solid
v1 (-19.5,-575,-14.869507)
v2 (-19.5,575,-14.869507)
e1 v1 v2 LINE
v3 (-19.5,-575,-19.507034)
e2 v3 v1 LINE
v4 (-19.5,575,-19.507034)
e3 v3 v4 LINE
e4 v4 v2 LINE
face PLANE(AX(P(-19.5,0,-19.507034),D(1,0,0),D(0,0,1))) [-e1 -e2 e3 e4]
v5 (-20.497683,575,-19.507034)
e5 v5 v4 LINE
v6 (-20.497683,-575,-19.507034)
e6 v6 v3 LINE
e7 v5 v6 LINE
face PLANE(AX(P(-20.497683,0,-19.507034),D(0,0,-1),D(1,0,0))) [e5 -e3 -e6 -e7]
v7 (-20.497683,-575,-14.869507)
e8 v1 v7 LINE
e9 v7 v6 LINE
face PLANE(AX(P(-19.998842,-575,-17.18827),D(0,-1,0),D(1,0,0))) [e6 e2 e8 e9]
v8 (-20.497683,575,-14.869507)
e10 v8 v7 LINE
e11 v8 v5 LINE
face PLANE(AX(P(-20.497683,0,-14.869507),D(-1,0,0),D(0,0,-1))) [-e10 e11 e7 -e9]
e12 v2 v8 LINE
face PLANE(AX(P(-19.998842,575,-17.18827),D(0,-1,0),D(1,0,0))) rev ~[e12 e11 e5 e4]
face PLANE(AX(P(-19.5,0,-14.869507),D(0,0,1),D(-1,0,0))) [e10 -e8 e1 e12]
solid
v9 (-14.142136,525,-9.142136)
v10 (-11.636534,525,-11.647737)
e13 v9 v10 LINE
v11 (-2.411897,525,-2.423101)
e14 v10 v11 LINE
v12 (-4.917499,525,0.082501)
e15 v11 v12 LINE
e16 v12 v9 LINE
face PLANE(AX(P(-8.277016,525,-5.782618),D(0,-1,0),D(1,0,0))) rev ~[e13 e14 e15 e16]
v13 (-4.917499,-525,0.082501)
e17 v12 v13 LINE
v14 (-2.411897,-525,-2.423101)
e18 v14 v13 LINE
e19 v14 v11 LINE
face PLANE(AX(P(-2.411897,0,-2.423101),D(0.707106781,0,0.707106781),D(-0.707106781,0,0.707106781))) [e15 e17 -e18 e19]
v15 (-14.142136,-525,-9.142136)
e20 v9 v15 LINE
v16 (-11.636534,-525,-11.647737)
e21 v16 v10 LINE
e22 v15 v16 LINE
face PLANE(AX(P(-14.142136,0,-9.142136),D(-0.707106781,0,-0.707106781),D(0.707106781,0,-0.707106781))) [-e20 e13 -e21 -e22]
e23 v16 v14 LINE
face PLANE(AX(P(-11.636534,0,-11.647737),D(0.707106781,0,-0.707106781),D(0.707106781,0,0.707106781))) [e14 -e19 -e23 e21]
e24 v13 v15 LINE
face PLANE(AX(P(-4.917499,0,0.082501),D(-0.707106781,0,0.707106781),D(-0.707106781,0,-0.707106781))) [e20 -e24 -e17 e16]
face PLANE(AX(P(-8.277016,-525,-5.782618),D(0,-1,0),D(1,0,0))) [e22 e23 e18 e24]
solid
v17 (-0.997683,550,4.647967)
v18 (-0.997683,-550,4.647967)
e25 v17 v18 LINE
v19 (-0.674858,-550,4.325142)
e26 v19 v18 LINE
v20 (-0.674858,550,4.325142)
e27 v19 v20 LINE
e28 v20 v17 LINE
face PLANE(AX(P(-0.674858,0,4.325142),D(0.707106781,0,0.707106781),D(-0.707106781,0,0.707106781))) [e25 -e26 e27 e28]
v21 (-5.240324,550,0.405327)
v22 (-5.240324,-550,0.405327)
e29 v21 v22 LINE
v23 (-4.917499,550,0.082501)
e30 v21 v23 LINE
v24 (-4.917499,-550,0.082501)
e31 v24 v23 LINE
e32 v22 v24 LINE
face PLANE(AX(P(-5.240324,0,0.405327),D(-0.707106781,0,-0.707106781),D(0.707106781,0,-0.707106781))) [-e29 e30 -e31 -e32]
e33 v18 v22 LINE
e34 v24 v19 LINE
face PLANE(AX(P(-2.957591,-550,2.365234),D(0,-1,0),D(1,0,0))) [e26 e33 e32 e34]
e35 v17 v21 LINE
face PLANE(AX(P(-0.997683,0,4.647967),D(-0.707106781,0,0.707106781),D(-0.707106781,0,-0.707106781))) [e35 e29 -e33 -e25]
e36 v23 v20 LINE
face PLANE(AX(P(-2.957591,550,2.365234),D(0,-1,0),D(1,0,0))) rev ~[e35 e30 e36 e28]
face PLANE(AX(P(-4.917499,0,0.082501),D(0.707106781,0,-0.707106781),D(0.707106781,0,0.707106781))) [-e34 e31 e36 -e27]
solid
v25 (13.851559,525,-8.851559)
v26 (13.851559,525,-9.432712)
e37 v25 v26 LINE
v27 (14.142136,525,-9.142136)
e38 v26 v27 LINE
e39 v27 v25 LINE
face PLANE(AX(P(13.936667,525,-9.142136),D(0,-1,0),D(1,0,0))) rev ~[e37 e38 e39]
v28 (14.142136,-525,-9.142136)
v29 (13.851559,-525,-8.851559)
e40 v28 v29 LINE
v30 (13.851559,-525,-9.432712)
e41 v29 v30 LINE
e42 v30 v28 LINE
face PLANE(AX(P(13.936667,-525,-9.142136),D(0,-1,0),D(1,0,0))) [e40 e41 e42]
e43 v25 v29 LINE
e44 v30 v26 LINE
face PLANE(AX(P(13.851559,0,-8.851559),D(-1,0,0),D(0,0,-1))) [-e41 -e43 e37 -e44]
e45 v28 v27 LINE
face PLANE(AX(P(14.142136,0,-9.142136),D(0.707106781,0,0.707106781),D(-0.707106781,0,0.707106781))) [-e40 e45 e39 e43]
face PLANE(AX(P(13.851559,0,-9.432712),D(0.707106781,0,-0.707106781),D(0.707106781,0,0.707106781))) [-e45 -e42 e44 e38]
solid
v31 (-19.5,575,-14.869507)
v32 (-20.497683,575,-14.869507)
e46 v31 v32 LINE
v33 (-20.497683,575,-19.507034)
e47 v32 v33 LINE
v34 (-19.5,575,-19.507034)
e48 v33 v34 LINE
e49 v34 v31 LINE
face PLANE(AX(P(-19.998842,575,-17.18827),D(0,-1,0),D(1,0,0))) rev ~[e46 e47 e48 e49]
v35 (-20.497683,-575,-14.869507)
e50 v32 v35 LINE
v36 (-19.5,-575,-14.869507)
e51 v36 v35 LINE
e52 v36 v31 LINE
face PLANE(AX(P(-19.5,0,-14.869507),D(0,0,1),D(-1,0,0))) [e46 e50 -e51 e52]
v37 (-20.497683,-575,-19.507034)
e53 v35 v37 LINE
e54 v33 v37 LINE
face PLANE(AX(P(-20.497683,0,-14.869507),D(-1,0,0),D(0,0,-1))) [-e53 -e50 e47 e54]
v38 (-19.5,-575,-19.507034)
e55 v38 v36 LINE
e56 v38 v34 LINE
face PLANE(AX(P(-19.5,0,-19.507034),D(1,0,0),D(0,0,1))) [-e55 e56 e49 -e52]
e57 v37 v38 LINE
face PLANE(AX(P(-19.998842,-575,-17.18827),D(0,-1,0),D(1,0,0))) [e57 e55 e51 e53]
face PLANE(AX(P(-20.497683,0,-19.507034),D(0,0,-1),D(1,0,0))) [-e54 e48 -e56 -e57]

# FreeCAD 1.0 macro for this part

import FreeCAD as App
import Part
import Sketcher
Q = App.Units.Quantity


def add_polygon(sketch, points):
    """Adds a closed chain of lines whose ends are joined by coincident constraints."""
    first, n = sketch.GeometryCount, len(points)
    for a, b in zip(points, points[1:] + points[:1]):
        sketch.addGeometry(Part.LineSegment(App.Vector(*a, 0), App.Vector(*b, 0)), False)
    for i in range(n):
        sketch.addConstraint(Sketcher.Constraint("Coincident", first + i, 2, first + (i + 1) % n, 1))

doc = App.newDocument("Part")
body = doc.addObject("PartDesign::Body", "Body")

sketch1 = body.newObject("Sketcher::SketchObject", "Sketch")
sketch1.AttachmentSupport = (doc.getObject("XZ_Plane"), [""])
sketch1.MapMode = "FlatFace"
add_polygon(sketch1, [(-2.4, -2.4), (-4.9, 0.1), (-14.1, -9.1), (-11.6, -11.6)])
sketch1.addConstraint([
    Sketcher.Constraint("Perpendicular", 0, 1),
    Sketcher.Constraint("Perpendicular", 1, 2),
    Sketcher.Constraint("Perpendicular", 2, 3),
    Sketcher.Constraint("Angle", 0, Q("135 deg")),
    Sketcher.Constraint("DistanceX", 0, 2, -1, 1, Q("4.917499 mm")),
    Sketcher.Constraint("DistanceY", -1, 1, 0, 2, Q("0.082501 mm")),
    Sketcher.Constraint("DistanceY", 3, 2, -1, 1, Q("2.423101 mm")),
    Sketcher.Constraint("DistanceY", 2, 2, 0, 2, Q("11.730239 mm")),
])
pad1 = body.newObject("PartDesign::Pad", "Pad")
pad1.Profile = sketch1
pad1.Length = 1050
pad1.Midplane = True
body2 = doc.addObject("PartDesign::Body", "Body001")

sketch2 = body2.newObject("Sketcher::SketchObject", "Sketch001")
sketch2.AttachmentSupport = (doc.getObject("XZ_Plane001"), [""])
sketch2.MapMode = "FlatFace"
add_polygon(sketch2, [(14.14, -9.14), (13.85, -8.85), (13.85, -9.43)])
sketch2.addConstraint([
    Sketcher.Constraint("Vertical", 1),
    Sketcher.Constraint("Perpendicular", 0, 2),
    Sketcher.Constraint("Equal", 0, 2),
    Sketcher.Constraint("DistanceY", 1, 2, 1, 1, Q("0.581153 mm")),
    Sketcher.Constraint("DistanceX", -1, 1, 0, 2, Q("13.851559 mm")),
    Sketcher.Constraint("DistanceY", 0, 2, -1, 1, Q("8.851559 mm")),
])
pad2 = body2.newObject("PartDesign::Pad", "Pad001")
pad2.Profile = sketch2
pad2.Length = 1050
pad2.Midplane = True
body3 = doc.addObject("PartDesign::Body", "Body002")

sketch3 = body3.newObject("Sketcher::SketchObject", "Sketch002")
sketch3.AttachmentSupport = (doc.getObject("XZ_Plane002"), [""])
sketch3.MapMode = "FlatFace"
add_polygon(sketch3, [(0, 5), (13.819, -8.819), (13.852, -8.787), (-0.675, 5.739), (-1.414, 5), (-14.849, -8.435), (-14.465, -8.819), (-5.24, 0.405), (-4.917, 0.083)])
sketch3.addConstraint([
    Sketcher.Constraint("PointOnObject", 8, 2, -2),
    Sketcher.Constraint("Perpendicular", 0, 1),
    Sketcher.Constraint("Perpendicular", 1, 2),
    Sketcher.Constraint("Perpendicular", 2, 3),
    Sketcher.Constraint("Parallel", 3, 4),
    Sketcher.Constraint("Perpendicular", 4, 5),
    Sketcher.Constraint("Perpendicular", 5, 6),
    Sketcher.Constraint("Perpendicular", 6, 7),
    Sketcher.Constraint("Perpendicular", 7, 8),
    Sketcher.Constraint("Horizontal", 0, 2, 5, 2),
    Sketcher.Constraint("Horizontal", 3, 2, 8, 2),
    Sketcher.Constraint("Angle", 0, Q("-45 deg")),
    Sketcher.Constraint("Distance", 4, Q("19 mm")),
    Sketcher.Constraint("DistanceY", -1, 1, 3, 2, Q("5 mm")),
    Sketcher.Constraint("DistanceX", 7, 2, -1, 1, Q("4.917499 mm")),
    Sketcher.Constraint("DistanceX", 4, 2, 1, 2, Q("28.700801 mm")),
    Sketcher.Constraint("DistanceX", -1, 1, 0, 2, Q("13.81931 mm")),
    Sketcher.Constraint("DistanceX", -1, 1, 1, 2, Q("13.851559 mm")),
])
pad3 = body3.newObject("PartDesign::Pad", "Pad002")
pad3.Profile = sketch3
pad3.Length = 1100
pad3.Midplane = True
body4 = doc.addObject("PartDesign::Body", "Body003")

sketch4 = body4.newObject("Sketcher::SketchObject", "Sketch003")
sketch4.AttachmentSupport = (doc.getObject("XZ_Plane003"), [""])
sketch4.MapMode = "FlatFace"
add_polygon(sketch4, [(-19.5, -14.9), (-20.5, -14.9), (-20.5, -19.5), (-19.5, -19.5)])
sketch4.addConstraint([
    Sketcher.Constraint("Horizontal", 0),
    Sketcher.Constraint("Vertical", 1),
    Sketcher.Constraint("Horizontal", 2),
    Sketcher.Constraint("Vertical", 3),
    Sketcher.Constraint("DistanceX", 2, 2, -1, 1, Q("19.5 mm")),
    Sketcher.Constraint("DistanceX", 0, 2, 0, 1, Q("0.997683 mm")),
    Sketcher.Constraint("DistanceY", 1, 2, 1, 1, Q("4.637527 mm")),
    Sketcher.Constraint("DistanceY", 0, 2, -1, 1, Q("14.869507 mm")),
])
pad4 = body4.newObject("PartDesign::Pad", "Pad003")
pad4.Profile = sketch4
pad4.Length = 1150
pad4.Midplane = True
body5 = doc.addObject("PartDesign::Body", "Body004")

sketch5 = body5.newObject("Sketcher::SketchObject", "Sketch004")
sketch5.AttachmentSupport = (doc.getObject("XZ_Plane004"), [""])
sketch5.MapMode = "FlatFace"
add_polygon(sketch5, [(-0.67, 4.33), (-1, 4.65), (-5.24, 0.41), (-4.92, 0.08)])
sketch5.addConstraint([
    Sketcher.Constraint("Perpendicular", 0, 1),
    Sketcher.Constraint("Perpendicular", 1, 2),
    Sketcher.Constraint("Perpendicular", 2, 3),
    Sketcher.Constraint("Angle", 0, Q("135 deg")),
    Sketcher.Constraint("Distance", 1, Q("6 mm")),
    Sketcher.Constraint("DistanceX", 2, 2, -1, 1, Q("4.917499 mm")),
    Sketcher.Constraint("DistanceY", -1, 1, 2, 2, Q("0.082501 mm")),
    Sketcher.Constraint("Distance", 0, Q("0.456544 mm")),
])
pad5 = body5.newObject("PartDesign::Pad", "Pad004")
pad5.Profile = sketch5
pad5.Length = 1100
pad5.Midplane = True
body6 = doc.addObject("PartDesign::Body", "Body005")

sketch6 = body6.newObject("Sketcher::SketchObject", "Sketch005")
sketch6.AttachmentSupport = (doc.getObject("XZ_Plane005"), [""])
sketch6.MapMode = "FlatFace"
add_polygon(sketch6, [(-19.5, -14.9), (-20.5, -14.9), (-20.5, -19.5), (-19.5, -19.5)])
sketch6.addConstraint([
    Sketcher.Constraint("Horizontal", 0),
    Sketcher.Constraint("Vertical", 1),
    Sketcher.Constraint("Horizontal", 2),
    Sketcher.Constraint("Vertical", 3),
    Sketcher.Constraint("DistanceX", 2, 2, -1, 1, Q("19.5 mm")),
    Sketcher.Constraint("DistanceX", 0, 2, 0, 1, Q("0.997683 mm")),
    Sketcher.Constraint("DistanceY", 1, 2, 1, 1, Q("4.637527 mm")),
    Sketcher.Constraint("DistanceY", 0, 2, -1, 1, Q("14.869507 mm")),
])
pad6 = body6.newObject("PartDesign::Pad", "Pad005")
pad6.Profile = sketch6
pad6.Length = 1150
pad6.Midplane = True
body3.Visibility = False

doc.recompute()
